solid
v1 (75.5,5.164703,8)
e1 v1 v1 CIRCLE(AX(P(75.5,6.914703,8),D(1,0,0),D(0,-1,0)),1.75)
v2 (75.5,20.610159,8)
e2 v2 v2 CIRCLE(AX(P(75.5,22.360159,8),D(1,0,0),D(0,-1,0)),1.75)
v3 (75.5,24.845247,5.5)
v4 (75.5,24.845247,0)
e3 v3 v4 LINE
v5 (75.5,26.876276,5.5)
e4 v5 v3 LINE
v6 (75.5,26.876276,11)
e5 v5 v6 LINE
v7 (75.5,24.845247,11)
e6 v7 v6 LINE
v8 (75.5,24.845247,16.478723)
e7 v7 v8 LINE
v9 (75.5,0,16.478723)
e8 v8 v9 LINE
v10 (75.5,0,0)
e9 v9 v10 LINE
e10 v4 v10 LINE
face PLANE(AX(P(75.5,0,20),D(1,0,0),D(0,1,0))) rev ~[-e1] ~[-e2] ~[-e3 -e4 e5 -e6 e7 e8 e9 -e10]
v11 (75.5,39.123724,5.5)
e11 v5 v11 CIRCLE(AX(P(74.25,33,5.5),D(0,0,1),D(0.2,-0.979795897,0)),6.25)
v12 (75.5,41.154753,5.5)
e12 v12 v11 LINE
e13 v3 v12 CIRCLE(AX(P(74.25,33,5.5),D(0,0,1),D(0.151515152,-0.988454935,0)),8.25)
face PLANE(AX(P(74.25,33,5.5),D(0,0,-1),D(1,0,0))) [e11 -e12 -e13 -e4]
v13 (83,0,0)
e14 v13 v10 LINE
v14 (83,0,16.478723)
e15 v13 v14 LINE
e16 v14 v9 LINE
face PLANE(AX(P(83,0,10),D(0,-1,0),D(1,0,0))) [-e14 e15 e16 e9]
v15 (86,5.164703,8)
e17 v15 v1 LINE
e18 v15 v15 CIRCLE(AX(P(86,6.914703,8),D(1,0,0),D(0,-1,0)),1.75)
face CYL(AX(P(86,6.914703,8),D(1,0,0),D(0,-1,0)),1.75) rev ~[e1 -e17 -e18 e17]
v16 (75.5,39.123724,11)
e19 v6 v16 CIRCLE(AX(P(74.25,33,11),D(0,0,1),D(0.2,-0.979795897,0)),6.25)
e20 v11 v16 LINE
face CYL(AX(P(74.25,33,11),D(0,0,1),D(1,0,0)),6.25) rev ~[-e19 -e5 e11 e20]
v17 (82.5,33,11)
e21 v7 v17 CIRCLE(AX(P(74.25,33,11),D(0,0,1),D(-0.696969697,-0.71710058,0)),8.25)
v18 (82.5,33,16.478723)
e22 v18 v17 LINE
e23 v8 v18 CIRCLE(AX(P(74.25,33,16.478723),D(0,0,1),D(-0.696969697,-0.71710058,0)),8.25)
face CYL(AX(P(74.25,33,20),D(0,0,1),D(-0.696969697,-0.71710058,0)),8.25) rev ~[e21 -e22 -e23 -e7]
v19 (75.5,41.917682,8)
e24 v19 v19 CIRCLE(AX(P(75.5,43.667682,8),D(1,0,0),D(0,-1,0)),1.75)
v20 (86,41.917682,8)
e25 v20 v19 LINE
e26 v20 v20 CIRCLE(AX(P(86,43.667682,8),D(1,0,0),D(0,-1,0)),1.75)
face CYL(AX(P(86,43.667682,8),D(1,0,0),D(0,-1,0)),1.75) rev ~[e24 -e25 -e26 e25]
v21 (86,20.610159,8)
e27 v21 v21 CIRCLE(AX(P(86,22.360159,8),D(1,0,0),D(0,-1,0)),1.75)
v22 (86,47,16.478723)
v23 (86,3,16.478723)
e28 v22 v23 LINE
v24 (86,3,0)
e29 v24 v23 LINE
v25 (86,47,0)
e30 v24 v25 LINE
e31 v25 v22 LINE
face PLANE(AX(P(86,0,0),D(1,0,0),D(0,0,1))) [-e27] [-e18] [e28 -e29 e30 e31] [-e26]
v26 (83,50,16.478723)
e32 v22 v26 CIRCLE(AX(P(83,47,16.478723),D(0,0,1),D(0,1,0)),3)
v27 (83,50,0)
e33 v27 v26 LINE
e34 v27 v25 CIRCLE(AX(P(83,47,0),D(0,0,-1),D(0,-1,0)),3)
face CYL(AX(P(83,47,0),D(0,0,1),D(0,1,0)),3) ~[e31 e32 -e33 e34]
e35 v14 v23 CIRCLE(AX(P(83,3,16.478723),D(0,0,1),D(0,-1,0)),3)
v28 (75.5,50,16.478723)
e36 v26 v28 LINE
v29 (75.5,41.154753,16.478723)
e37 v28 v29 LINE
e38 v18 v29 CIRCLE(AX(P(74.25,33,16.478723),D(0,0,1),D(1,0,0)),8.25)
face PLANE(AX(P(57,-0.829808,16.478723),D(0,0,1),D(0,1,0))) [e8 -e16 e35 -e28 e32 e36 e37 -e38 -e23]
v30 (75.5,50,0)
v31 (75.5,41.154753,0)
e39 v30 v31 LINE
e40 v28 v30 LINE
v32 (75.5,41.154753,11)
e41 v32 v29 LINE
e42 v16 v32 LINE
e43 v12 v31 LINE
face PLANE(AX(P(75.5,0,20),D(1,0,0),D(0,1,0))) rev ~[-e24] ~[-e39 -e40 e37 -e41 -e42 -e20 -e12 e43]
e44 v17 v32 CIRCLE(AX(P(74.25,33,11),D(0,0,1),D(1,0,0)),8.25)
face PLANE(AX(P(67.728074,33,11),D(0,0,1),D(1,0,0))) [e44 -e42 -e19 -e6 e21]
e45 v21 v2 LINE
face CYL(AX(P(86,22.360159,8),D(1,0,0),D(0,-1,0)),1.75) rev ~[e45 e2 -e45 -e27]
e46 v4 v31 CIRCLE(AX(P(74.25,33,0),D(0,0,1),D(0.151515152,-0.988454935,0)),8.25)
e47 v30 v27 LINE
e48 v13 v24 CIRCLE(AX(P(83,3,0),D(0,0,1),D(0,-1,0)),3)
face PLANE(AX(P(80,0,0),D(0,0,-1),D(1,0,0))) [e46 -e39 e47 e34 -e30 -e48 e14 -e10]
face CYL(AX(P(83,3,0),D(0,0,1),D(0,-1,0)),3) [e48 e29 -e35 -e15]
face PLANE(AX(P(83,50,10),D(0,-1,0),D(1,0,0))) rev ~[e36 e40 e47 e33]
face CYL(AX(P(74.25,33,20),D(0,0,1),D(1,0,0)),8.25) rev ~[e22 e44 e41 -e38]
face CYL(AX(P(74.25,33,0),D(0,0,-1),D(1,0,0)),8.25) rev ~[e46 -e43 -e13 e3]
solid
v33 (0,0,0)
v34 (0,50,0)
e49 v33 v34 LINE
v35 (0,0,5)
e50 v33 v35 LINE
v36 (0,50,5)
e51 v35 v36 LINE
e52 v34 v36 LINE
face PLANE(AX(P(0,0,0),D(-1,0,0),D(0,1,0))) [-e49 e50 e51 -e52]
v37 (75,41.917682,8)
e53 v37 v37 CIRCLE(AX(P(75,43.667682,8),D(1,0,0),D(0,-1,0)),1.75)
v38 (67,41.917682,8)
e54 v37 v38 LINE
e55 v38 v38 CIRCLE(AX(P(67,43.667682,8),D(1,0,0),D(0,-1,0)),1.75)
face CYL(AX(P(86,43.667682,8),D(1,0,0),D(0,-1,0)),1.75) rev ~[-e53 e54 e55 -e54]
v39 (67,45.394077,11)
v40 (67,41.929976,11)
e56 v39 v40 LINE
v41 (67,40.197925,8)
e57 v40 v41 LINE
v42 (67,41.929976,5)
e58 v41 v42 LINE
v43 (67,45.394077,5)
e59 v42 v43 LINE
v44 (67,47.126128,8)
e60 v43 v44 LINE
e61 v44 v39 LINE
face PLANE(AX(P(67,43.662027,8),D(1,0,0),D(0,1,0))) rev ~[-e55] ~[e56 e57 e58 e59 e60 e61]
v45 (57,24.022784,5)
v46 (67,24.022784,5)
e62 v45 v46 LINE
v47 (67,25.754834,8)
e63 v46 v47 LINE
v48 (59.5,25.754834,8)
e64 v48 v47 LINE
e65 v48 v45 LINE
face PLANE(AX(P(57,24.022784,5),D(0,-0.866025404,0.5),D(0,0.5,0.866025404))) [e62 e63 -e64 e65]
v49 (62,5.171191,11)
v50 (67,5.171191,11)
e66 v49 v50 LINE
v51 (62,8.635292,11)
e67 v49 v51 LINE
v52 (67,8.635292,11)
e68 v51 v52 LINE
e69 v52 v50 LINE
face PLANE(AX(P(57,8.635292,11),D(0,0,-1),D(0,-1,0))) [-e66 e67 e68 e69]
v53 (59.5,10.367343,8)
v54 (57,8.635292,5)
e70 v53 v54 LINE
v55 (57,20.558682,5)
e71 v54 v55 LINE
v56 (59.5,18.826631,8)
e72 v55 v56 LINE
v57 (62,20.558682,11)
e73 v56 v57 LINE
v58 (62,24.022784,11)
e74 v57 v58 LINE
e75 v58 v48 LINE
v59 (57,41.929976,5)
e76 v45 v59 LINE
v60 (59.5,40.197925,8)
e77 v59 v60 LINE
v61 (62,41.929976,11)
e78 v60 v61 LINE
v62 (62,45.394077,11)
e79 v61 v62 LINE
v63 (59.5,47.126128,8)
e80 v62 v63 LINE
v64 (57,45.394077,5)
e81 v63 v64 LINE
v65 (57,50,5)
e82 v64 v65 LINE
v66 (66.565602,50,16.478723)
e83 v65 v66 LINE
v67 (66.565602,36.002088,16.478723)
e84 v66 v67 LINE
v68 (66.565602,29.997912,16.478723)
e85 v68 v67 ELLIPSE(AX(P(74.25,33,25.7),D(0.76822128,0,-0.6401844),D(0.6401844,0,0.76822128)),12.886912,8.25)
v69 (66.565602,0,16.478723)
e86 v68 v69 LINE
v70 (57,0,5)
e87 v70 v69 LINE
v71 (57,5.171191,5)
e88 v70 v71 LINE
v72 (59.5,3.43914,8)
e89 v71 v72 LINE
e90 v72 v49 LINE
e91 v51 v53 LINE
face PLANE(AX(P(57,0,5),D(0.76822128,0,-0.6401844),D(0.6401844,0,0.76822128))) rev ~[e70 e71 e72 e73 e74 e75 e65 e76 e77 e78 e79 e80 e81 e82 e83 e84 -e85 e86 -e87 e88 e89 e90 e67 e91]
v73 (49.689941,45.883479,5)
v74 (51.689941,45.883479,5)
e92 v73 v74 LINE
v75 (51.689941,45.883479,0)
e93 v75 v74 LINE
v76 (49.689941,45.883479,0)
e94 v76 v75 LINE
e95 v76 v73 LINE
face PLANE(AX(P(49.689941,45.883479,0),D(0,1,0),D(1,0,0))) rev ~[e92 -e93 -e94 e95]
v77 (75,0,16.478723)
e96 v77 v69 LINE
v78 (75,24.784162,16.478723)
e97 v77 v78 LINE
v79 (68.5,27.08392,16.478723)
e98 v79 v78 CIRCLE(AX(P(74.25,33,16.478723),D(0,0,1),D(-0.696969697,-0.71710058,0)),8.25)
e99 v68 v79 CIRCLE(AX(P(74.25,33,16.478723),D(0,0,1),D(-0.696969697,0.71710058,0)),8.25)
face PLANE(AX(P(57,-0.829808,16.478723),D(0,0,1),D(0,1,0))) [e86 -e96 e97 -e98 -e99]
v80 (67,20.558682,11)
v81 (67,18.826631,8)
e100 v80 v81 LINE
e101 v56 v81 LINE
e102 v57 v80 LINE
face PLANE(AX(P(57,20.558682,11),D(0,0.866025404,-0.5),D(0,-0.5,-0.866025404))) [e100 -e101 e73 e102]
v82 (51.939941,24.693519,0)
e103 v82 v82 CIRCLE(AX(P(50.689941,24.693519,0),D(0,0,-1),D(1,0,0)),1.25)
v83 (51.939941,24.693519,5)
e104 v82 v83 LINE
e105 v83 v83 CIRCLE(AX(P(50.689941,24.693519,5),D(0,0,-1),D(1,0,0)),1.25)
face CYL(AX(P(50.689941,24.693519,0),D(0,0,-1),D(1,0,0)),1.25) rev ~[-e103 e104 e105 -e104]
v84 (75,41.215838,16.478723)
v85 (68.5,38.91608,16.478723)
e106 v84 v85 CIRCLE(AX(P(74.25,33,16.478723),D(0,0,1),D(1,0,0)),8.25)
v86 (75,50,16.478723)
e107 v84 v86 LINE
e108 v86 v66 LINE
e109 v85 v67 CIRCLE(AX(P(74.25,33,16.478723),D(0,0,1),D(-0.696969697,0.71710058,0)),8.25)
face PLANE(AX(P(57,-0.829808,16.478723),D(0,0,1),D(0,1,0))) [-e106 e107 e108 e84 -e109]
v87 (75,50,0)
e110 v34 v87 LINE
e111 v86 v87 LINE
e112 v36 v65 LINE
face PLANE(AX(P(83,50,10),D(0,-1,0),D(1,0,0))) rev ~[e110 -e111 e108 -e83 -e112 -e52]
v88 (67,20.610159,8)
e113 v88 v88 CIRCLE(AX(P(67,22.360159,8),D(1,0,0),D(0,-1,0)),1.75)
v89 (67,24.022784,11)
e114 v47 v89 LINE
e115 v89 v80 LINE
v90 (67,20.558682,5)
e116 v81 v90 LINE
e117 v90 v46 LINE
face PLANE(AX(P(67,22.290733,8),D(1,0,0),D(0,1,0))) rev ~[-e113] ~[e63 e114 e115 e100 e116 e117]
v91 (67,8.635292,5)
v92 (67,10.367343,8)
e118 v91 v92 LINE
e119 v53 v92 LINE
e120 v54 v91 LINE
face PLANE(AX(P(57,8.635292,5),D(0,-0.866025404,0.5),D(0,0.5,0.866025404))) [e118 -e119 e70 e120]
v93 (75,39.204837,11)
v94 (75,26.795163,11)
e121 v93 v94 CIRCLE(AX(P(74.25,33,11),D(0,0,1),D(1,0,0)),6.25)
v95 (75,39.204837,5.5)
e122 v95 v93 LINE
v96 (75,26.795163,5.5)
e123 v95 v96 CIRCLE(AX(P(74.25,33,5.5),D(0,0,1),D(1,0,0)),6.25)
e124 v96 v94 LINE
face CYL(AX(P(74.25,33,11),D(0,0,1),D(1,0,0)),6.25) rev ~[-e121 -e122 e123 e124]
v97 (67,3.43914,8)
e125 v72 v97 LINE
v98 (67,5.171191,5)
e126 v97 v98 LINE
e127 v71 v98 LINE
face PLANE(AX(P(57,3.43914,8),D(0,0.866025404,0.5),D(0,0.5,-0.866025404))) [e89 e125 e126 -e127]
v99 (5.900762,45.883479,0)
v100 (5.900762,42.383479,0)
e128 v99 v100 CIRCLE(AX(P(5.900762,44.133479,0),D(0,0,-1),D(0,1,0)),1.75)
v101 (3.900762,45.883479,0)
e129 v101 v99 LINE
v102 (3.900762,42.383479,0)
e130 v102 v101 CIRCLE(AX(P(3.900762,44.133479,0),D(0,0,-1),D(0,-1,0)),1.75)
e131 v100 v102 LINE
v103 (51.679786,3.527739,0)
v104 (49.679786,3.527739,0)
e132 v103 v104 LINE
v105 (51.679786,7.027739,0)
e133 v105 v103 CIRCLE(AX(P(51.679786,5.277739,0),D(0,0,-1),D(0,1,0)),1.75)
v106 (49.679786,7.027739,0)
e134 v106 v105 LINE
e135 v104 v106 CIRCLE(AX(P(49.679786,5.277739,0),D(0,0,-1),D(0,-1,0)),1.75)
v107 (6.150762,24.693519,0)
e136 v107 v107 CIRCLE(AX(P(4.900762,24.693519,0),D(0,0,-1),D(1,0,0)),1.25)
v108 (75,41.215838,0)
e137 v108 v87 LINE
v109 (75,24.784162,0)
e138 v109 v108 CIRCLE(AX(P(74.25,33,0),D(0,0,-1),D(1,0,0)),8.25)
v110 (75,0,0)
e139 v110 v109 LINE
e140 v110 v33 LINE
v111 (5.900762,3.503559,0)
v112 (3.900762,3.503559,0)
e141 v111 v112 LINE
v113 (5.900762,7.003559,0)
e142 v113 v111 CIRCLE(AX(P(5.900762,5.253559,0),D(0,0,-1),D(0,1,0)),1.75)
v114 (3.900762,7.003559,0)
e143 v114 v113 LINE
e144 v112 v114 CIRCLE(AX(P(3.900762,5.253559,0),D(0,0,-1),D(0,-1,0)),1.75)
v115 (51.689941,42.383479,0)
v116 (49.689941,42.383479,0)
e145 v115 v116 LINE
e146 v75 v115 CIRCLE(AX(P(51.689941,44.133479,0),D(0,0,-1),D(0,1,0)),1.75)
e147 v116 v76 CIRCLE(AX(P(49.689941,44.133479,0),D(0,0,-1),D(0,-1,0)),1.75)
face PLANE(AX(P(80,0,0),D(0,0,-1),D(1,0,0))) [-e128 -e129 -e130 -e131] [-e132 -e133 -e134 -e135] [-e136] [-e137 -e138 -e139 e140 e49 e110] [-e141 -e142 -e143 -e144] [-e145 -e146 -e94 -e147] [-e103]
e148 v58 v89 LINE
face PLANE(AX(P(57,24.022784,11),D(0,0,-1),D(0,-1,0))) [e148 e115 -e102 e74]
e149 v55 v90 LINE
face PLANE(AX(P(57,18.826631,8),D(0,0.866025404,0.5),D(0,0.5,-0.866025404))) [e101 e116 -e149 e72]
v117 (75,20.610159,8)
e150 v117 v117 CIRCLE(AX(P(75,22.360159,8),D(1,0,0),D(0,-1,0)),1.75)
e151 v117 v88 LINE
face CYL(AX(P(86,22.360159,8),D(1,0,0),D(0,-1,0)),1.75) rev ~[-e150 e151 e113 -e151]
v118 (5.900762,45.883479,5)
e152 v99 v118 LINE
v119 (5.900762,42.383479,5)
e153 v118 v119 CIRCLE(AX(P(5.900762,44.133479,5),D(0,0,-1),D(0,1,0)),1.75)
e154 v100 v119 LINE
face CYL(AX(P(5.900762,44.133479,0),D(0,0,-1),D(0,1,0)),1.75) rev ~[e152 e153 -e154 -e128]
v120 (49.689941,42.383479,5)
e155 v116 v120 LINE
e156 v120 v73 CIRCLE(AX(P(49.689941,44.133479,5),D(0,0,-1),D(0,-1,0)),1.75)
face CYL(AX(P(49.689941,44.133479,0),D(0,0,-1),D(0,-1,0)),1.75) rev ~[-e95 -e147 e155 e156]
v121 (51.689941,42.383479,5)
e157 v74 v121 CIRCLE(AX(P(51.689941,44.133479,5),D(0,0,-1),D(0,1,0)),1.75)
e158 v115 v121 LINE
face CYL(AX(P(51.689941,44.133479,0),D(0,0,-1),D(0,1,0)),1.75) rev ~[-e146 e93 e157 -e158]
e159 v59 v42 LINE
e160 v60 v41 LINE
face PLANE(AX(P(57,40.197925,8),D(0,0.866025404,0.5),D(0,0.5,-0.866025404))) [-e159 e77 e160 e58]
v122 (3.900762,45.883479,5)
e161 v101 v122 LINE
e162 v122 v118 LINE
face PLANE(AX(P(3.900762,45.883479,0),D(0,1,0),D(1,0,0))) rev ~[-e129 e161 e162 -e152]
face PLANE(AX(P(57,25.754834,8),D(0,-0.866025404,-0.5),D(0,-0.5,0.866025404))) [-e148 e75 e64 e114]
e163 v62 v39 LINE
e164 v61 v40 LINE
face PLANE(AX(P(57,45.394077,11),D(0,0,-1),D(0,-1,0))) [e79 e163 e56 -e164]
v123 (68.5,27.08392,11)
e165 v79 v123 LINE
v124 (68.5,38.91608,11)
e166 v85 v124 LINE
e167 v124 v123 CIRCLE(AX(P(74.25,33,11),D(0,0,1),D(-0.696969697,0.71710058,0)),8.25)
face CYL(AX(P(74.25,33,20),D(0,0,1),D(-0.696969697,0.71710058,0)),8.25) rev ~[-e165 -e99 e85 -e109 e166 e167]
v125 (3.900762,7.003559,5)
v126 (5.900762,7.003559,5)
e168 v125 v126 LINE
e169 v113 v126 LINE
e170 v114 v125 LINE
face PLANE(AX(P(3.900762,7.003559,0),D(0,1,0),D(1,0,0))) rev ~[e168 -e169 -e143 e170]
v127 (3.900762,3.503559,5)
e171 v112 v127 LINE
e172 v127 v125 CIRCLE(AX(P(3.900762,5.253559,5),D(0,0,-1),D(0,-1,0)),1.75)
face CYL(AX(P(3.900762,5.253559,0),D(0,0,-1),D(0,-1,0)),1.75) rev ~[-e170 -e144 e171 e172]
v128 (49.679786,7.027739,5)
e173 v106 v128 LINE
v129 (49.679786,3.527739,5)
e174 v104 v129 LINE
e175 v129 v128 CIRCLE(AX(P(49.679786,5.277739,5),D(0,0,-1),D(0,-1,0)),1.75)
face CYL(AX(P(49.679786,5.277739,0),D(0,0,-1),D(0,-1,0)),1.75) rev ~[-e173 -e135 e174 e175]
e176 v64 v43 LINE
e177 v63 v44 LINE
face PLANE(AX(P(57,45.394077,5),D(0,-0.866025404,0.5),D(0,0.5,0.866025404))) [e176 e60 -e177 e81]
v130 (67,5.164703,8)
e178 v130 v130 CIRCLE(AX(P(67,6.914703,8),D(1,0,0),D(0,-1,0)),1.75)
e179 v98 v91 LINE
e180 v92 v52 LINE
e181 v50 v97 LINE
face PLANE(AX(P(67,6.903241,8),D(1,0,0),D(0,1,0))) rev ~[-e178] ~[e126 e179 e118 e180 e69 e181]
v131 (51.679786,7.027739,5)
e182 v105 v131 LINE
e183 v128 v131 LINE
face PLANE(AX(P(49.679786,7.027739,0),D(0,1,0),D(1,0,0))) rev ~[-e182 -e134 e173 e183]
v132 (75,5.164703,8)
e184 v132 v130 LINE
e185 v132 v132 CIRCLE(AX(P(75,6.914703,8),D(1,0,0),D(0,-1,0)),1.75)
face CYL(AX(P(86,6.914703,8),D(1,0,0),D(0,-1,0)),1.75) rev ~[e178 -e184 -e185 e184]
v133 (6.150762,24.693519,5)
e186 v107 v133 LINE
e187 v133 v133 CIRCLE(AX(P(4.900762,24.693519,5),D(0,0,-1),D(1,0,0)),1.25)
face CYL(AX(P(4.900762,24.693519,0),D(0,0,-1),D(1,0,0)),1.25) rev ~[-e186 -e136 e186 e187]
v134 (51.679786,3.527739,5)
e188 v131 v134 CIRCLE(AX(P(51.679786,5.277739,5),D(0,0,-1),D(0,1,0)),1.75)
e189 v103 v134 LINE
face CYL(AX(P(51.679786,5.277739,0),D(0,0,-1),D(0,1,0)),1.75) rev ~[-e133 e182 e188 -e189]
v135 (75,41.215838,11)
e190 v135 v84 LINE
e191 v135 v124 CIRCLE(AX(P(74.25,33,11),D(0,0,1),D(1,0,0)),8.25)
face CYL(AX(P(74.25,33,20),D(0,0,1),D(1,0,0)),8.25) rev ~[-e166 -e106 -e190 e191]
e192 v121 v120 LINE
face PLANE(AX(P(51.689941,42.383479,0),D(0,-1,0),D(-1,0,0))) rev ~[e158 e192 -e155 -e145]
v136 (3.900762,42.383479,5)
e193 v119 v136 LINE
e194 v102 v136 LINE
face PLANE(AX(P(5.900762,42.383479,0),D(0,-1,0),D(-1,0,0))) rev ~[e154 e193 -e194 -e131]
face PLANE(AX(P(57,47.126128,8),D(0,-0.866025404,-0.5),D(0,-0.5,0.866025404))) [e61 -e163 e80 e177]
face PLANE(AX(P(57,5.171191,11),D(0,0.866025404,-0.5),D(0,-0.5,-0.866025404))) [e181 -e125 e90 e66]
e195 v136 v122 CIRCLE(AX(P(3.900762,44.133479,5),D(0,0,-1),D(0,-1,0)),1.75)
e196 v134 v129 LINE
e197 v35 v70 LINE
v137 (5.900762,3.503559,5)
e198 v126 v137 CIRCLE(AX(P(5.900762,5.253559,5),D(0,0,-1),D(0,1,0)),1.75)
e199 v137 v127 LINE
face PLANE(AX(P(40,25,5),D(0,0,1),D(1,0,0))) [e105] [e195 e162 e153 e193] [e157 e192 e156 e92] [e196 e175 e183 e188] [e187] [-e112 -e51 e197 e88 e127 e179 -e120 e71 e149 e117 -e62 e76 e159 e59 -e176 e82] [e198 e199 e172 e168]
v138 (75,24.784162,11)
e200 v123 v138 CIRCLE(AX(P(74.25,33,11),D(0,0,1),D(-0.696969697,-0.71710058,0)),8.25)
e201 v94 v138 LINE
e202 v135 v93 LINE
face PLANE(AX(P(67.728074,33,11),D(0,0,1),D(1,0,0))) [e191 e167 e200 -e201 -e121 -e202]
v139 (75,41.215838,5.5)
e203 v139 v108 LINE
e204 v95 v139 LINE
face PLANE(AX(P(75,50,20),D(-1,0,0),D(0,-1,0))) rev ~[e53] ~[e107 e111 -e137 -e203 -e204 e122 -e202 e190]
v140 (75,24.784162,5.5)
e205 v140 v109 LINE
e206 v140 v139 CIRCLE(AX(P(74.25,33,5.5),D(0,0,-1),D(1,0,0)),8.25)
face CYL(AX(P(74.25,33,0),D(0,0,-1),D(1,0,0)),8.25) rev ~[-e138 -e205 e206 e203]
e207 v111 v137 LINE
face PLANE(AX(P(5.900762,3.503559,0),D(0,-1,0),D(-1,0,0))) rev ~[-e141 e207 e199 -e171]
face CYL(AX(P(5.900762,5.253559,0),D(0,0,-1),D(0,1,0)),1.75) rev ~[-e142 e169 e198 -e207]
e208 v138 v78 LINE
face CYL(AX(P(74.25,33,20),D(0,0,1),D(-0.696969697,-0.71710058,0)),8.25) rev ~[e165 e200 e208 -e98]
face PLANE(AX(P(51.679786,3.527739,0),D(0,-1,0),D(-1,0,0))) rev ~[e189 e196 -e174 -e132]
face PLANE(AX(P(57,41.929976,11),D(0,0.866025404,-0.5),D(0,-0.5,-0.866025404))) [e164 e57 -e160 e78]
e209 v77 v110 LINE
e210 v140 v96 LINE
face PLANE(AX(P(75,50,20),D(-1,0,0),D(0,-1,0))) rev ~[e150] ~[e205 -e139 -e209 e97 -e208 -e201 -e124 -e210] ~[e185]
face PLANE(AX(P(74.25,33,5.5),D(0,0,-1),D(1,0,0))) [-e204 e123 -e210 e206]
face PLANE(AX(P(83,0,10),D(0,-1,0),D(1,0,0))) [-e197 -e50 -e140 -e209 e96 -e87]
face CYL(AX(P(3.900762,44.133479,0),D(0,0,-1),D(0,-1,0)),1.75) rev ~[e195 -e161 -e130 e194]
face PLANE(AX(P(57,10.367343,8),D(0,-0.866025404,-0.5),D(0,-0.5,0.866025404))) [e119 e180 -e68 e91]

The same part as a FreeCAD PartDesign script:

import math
import FreeCAD as App
import Part
import Sketcher
Q = App.Units.Quantity


def edges_at(feature, points):
    """Names of the edges that pass closest to the given points."""
    edges = feature.Shape.Edges
    near = lambda p: min(range(len(edges)), key=lambda i: edges[i].distToShape(Part.Vertex(*p))[0])
    return sorted({f"Edge{near(p) + 1}" for p in points})

doc = App.newDocument("Part")
params = doc.addObject("Spreadsheet::Sheet", "Params")
for row, (alias, value) in enumerate([
    ("sketch1_width", "80 mm"),
    ("sketch1_width2", "2 mm"),
    ("sketch1_height", "50 mm"),
    ("sketch1_radius", "1.75 mm"),
    ("pad1_length", "5 mm"),
    ("sketch2_width", "23 mm"),
    ("sketch2_height", "50 mm"),
    ("pad2_length", "15 mm"),
    ("sketch3_height", "15 mm"),
    ("sketch3_width", "11.5 mm"),
    ("pocket1_length", "50 mm"),
    ("sketch4_radius", "1.25 mm"),
    ("pocket2_length", "25 mm"),
    ("sketch5_width", "6 mm"),
    ("sketch5_height", "20 mm"),
    ("pad3_length", "50 mm"),
    ("sketch6_diameter", "2.5 mm"),
    ("sketch6_radius", "8.25 mm"),
    ("pocket3_length", "9 mm"),
    ("sketch7_diameter", "12.5 mm"),
    ("sketch7_diameter2", "2.5 mm"),
    ("pocket4_length", "6 mm"),
    ("sketch8_diameter", "16.5 mm"),
    ("sketch8_diameter2", "2.5 mm"),
    ("pocket5_length", "5.5 mm"),
    ("sketch9_height", "50 mm"),
    ("sketch9_width", "0.5 mm"),
    ("pocket6_length", "25 mm"),
    ("fillet_radius", "3 mm"),
    ("sketch10_width", "1 mm"),
    ("pocket7_length", "55 mm"),
    ("sketch11_diameter", "3.5 mm"),
    ("pocket8_length", "30 mm"),
    ("sketch12_diameter", "2.5 mm"),
    ("pocket9_length", "10 mm"),
    ("pocket10_length", "10 mm"),
    ("sketch14_height", "4 mm"),
    ("pocket11_length", "30 mm"),
], start=1):
    params.set(f"A{row}", alias)
    params.set(f"B{row}", "=" + value)
    params.setAlias(f"B{row}", alias)

body = doc.addObject("PartDesign::Body", "Body")
body.AllowCompound = True

sketch1 = body.newObject("Sketcher::SketchObject", "Sketch")
sketch1.AttachmentSupport = (doc.getObject("XY_Plane"), [""])
sketch1.MapMode = "FlatFace"
sketch1.addGeometry([
    Part.LineSegment(App.Vector(0, 50, 0), App.Vector(0, 0, 0)),
    Part.LineSegment(App.Vector(0, 0, 0), App.Vector(80, 0, 0)),
    Part.LineSegment(App.Vector(80, 0, 0), App.Vector(80, 50, 0)),
    Part.LineSegment(App.Vector(80, 50, 0), App.Vector(0, 50, 0)),
    Part.LineSegment(App.Vector(3.9, 7, 0), App.Vector(5.9, 7, 0)),
    Part.ArcOfCircle(Part.Circle(App.Vector(5.9, 5.3, 0), App.Vector(0, 0, 1), 1.8), math.radians(-90), math.radians(90)),
    Part.LineSegment(App.Vector(5.9, 3.5, 0), App.Vector(3.9, 3.5, 0)),
    Part.ArcOfCircle(Part.Circle(App.Vector(3.9, 5.3, 0), App.Vector(0, 0, 1), 1.8), math.radians(90), math.radians(270)),
    Part.LineSegment(App.Vector(49.7, 7, 0), App.Vector(51.7, 7, 0)),
    Part.ArcOfCircle(Part.Circle(App.Vector(51.7, 5.3, 0), App.Vector(0, 0, 1), 1.8), math.radians(-90), math.radians(90)),
    Part.LineSegment(App.Vector(51.7, 3.5, 0), App.Vector(49.7, 3.5, 0)),
    Part.ArcOfCircle(Part.Circle(App.Vector(49.7, 5.3, 0), App.Vector(0, 0, 1), 1.8), math.radians(90), math.radians(270)),
    Part.LineSegment(App.Vector(3.9, 45.9, 0), App.Vector(5.9, 45.9, 0)),
    Part.ArcOfCircle(Part.Circle(App.Vector(5.9, 44.1, 0), App.Vector(0, 0, 1), 1.8), math.radians(-90), math.radians(90)),
    Part.LineSegment(App.Vector(5.9, 42.4, 0), App.Vector(3.9, 42.4, 0)),
    Part.ArcOfCircle(Part.Circle(App.Vector(3.9, 44.1, 0), App.Vector(0, 0, 1), 1.8), math.radians(90), math.radians(270)),
    Part.LineSegment(App.Vector(49.7, 45.9, 0), App.Vector(51.7, 45.9, 0)),
    Part.ArcOfCircle(Part.Circle(App.Vector(51.7, 44.1, 0), App.Vector(0, 0, 1), 1.8), math.radians(-90), math.radians(90)),
    Part.LineSegment(App.Vector(51.7, 42.4, 0), App.Vector(49.7, 42.4, 0)),
    Part.ArcOfCircle(Part.Circle(App.Vector(49.7, 44.1, 0), App.Vector(0, 0, 1), 1.8), math.radians(90), math.radians(270)),
], False)
sketch1.addConstraint([
    Sketcher.Constraint("Coincident", 0, 2, 1, 1),
    Sketcher.Constraint("Coincident", 1, 2, 2, 1),
    Sketcher.Constraint("Coincident", 2, 2, 3, 1),
    Sketcher.Constraint("Coincident", 3, 2, 0, 1),
    Sketcher.Constraint("Tangent", 4, 2, 5, 2),
    Sketcher.Constraint("Tangent", 5, 1, 6, 1),
    Sketcher.Constraint("Tangent", 6, 2, 7, 2),
    Sketcher.Constraint("Tangent", 7, 1, 4, 1),
    Sketcher.Constraint("Tangent", 8, 2, 9, 2),
    Sketcher.Constraint("Tangent", 9, 1, 10, 1),
    Sketcher.Constraint("Tangent", 10, 2, 11, 2),
    Sketcher.Constraint("Tangent", 11, 1, 8, 1),
    Sketcher.Constraint("Tangent", 12, 2, 13, 2),
    Sketcher.Constraint("Tangent", 13, 1, 14, 1),
    Sketcher.Constraint("Tangent", 14, 2, 15, 2),
    Sketcher.Constraint("Tangent", 15, 1, 12, 1),
    Sketcher.Constraint("Tangent", 16, 2, 17, 2),
    Sketcher.Constraint("Tangent", 17, 1, 18, 1),
    Sketcher.Constraint("Tangent", 18, 2, 19, 2),
    Sketcher.Constraint("Tangent", 19, 1, 16, 1),
    Sketcher.Constraint("Vertical", 0),
    Sketcher.Constraint("Horizontal", 1),
    Sketcher.Constraint("Vertical", 2),
    Sketcher.Constraint("Horizontal", 3),
    Sketcher.Constraint("Horizontal", 4),
    Sketcher.Constraint("Horizontal", 6),
    Sketcher.Constraint("Horizontal", 8),
    Sketcher.Constraint("Horizontal", 10),
    Sketcher.Constraint("Horizontal", 12),
    Sketcher.Constraint("Horizontal", 14),
    Sketcher.Constraint("Horizontal", 16),
    Sketcher.Constraint("Horizontal", 18),
    Sketcher.Constraint("Coincident", 0, 2, -1, 1),
    Sketcher.Constraint("Equal", 7, 9),
    Sketcher.Constraint("Equal", 11, 13),
    Sketcher.Constraint("Equal", 15, 17),
    Sketcher.Constraint("Horizontal", 15, 3, 17, 3),
    Sketcher.Constraint("Vertical", 5, 3, 13, 3),
    Sketcher.Constraint("Vertical", 7, 3, 15, 3),
    Sketcher.Constraint("Equal", 6, 8),
    Sketcher.Constraint("Equal", 14, 16),
    Sketcher.Constraint("DistanceX", 1, 1, 1, 2, Q("80 mm")),
    Sketcher.Constraint("DistanceX", 4, 1, 4, 2, Q("2 mm")),
    Sketcher.Constraint("DistanceY", 0, 2, 0, 1, Q("50 mm")),
    Sketcher.Constraint("Radius", 5, Q("1.75 mm")),
    Sketcher.Constraint("DistanceX", -1, 1, 5, 3, Q("5.900762 mm")),
    Sketcher.Constraint("DistanceY", -1, 1, 5, 3, Q("5.253559 mm")),
    Sketcher.Constraint("DistanceY", -1, 1, 9, 3, Q("5.277739 mm")),
    Sketcher.Constraint("DistanceY", -1, 1, 13, 3, Q("44.133479 mm")),
    Sketcher.Constraint("DistanceX", -1, 1, 17, 3, Q("51.689941 mm")),
    Sketcher.Constraint("DistanceX", -1, 1, 9, 3, Q("51.679786 mm")),
])
sketch1.setExpression("Constraints[41]", "Params.sketch1_width")
sketch1.setExpression("Constraints[42]", "Params.sketch1_width2")
sketch1.setExpression("Constraints[43]", "Params.sketch1_height")
sketch1.setExpression("Constraints[44]", "Params.sketch1_radius")
pad1 = body.newObject("PartDesign::Pad", "Pad")
pad1.Profile = sketch1
pad1.setExpression("Length", "Params.pad1_length")

sketch2 = body.newObject("Sketcher::SketchObject", "Sketch001")
sketch2.AttachmentSupport = (doc.getObject("XY_Plane"), [""])
sketch2.MapMode = "FlatFace"
sketch2.AttachmentOffset = App.Placement(App.Vector(0, 0, 5), App.Rotation())
sketch2.addGeometry([
    Part.LineSegment(App.Vector(57, 50, 0), App.Vector(57, 0, 0)),
    Part.LineSegment(App.Vector(57, 0, 0), App.Vector(80, 0, 0)),
    Part.LineSegment(App.Vector(80, 0, 0), App.Vector(80, 50, 0)),
    Part.LineSegment(App.Vector(80, 50, 0), App.Vector(57, 50, 0)),
], False)
sketch2.addConstraint([
    Sketcher.Constraint("Coincident", 0, 2, 1, 1),
    Sketcher.Constraint("Coincident", 1, 2, 2, 1),
    Sketcher.Constraint("Coincident", 2, 2, 3, 1),
    Sketcher.Constraint("Coincident", 3, 2, 0, 1),
    Sketcher.Constraint("Vertical", 0),
    Sketcher.Constraint("Horizontal", 1),
    Sketcher.Constraint("Vertical", 2),
    Sketcher.Constraint("Horizontal", 3),
    Sketcher.Constraint("PointOnObject", 0, 2, -1),
    Sketcher.Constraint("DistanceX", 1, 1, 1, 2, Q("23 mm")),
    Sketcher.Constraint("DistanceY", 0, 2, 0, 1, Q("50 mm")),
    Sketcher.Constraint("DistanceX", -1, 1, 0, 2, Q("57 mm")),
])
sketch2.setExpression("Constraints[9]", "Params.sketch2_width")
sketch2.setExpression("Constraints[10]", "Params.sketch2_height")
pad2 = body.newObject("PartDesign::Pad", "Pad001")
pad2.Profile = sketch2
pad2.setExpression("Length", "Params.pad2_length")

sketch3 = body.newObject("Sketcher::SketchObject", "Sketch002")
sketch3.AttachmentSupport = (doc.getObject("XZ_Plane"), [""])
sketch3.MapMode = "FlatFace"
sketch3.addGeometry([
    Part.LineSegment(App.Vector(57, 5, 0), App.Vector(68, 20, 0)),
    Part.LineSegment(App.Vector(68, 20, 0), App.Vector(57, 20, 0)),
    Part.LineSegment(App.Vector(57, 20, 0), App.Vector(57, 5, 0)),
], False)
sketch3.addConstraint([
    Sketcher.Constraint("Coincident", 0, 2, 1, 1),
    Sketcher.Constraint("Coincident", 1, 2, 2, 1),
    Sketcher.Constraint("Coincident", 2, 2, 0, 1),
    Sketcher.Constraint("Horizontal", 1),
    Sketcher.Constraint("Vertical", 2),
    Sketcher.Constraint("DistanceY", 2, 2, 2, 1, Q("15 mm")),
    Sketcher.Constraint("DistanceX", 1, 2, 1, 1, Q("11.5 mm")),
    Sketcher.Constraint("DistanceY", -1, 1, 0, 2, Q("20 mm")),
    Sketcher.Constraint("DistanceX", -1, 1, 1, 2, Q("57 mm")),
])
sketch3.setExpression("Constraints[5]", "Params.sketch3_height")
sketch3.setExpression("Constraints[6]", "Params.sketch3_width")
pocket1 = body.newObject("PartDesign::Pocket", "Pocket")
pocket1.Profile = sketch3
pocket1.setExpression("Length", "Params.pocket1_length")

sketch4 = body.newObject("Sketcher::SketchObject", "Sketch003")
sketch4.AttachmentSupport = (doc.getObject("XY_Plane"), [""])
sketch4.MapMode = "FlatFace"
sketch4.AttachmentOffset = App.Placement(App.Vector(0, 0, 20), App.Rotation())
sketch4.addGeometry([
    Part.ArcOfCircle(Part.Circle(App.Vector(74.2, 33, 0), App.Vector(0, 0, 1), 1.2), math.radians(90), math.radians(270)),
    Part.ArcOfCircle(Part.Circle(App.Vector(74.2, 33, 0), App.Vector(0, 0, 1), 1.2), math.radians(-90), math.radians(0)),
    Part.ArcOfCircle(Part.Circle(App.Vector(74.2, 33, 0), App.Vector(0, 0, 1), 1.2), math.radians(0), math.radians(90)),
], False)
sketch4.addConstraint([
    Sketcher.Constraint("Tangent", 0, 2, 1, 1),
    Sketcher.Constraint("Tangent", 1, 2, 2, 1),
    Sketcher.Constraint("Tangent", 2, 2, 0, 1),
    Sketcher.Constraint("Horizontal", 2, 3, 1, 2),
    Sketcher.Constraint("Vertical", 2, 3, 0, 2),
    Sketcher.Constraint("Vertical", 0, 2, 2, 2),
    Sketcher.Constraint("Radius", 0, Q("1.25 mm")),
    Sketcher.Constraint("DistanceY", -1, 1, 0, 3, Q("33 mm")),
    Sketcher.Constraint("DistanceX", -1, 1, 1, 2, Q("75.5 mm")),
])
sketch4.setExpression("Constraints[6]", "Params.sketch4_radius")
pocket2 = body.newObject("PartDesign::Pocket", "Pocket001")
pocket2.Profile = sketch4
pocket2.setExpression("Length", "Params.pocket2_length")

sketch5 = body.newObject("Sketcher::SketchObject", "Sketch004")
sketch5.AttachmentSupport = (doc.getObject("XZ_Plane"), [""])
sketch5.MapMode = "FlatFace"
sketch5.addGeometry([
    Part.LineSegment(App.Vector(80, 20, 0), App.Vector(80, 0, 0)),
    Part.LineSegment(App.Vector(80, 0, 0), App.Vector(86, 0, 0)),
    Part.LineSegment(App.Vector(86, 0, 0), App.Vector(86, 20, 0)),
    Part.LineSegment(App.Vector(86, 20, 0), App.Vector(80, 20, 0)),
], False)
sketch5.addConstraint([
    Sketcher.Constraint("Coincident", 0, 2, 1, 1),
    Sketcher.Constraint("Coincident", 1, 2, 2, 1),
    Sketcher.Constraint("Coincident", 2, 2, 3, 1),
    Sketcher.Constraint("Coincident", 3, 2, 0, 1),
    Sketcher.Constraint("Vertical", 0),
    Sketcher.Constraint("Horizontal", 1),
    Sketcher.Constraint("Vertical", 2),
    Sketcher.Constraint("Horizontal", 3),
    Sketcher.Constraint("PointOnObject", 0, 2, -1),
    Sketcher.Constraint("DistanceX", 1, 1, 1, 2, Q("6 mm")),
    Sketcher.Constraint("DistanceY", 0, 2, 0, 1, Q("20 mm")),
    Sketcher.Constraint("DistanceX", -1, 1, 0, 2, Q("80 mm")),
])
sketch5.setExpression("Constraints[9]", "Params.sketch5_width")
sketch5.setExpression("Constraints[10]", "Params.sketch5_height")
pad3 = body.newObject("PartDesign::Pad", "Pad002")
pad3.Profile = sketch5
pad3.setExpression("Length", "Params.pad3_length")
pad3.Reversed = True

sketch6 = body.newObject("Sketcher::SketchObject", "Sketch005")
sketch6.AttachmentSupport = (doc.getObject("XY_Plane"), [""])
sketch6.MapMode = "FlatFace"
sketch6.AttachmentOffset = App.Placement(App.Vector(0, 0, 20), App.Rotation())
sketch6.addGeometry([
    Part.ArcOfCircle(Part.Circle(App.Vector(74.2, 33, 0), App.Vector(0, 0, 1), 8.2), math.radians(134), math.radians(226)),
    Part.ArcOfCircle(Part.Circle(App.Vector(74.2, 33, 0), App.Vector(0, 0, 1), 8.2), math.radians(-134), math.radians(0)),
    Part.ArcOfCircle(Part.Circle(App.Vector(74.2, 33, 0), App.Vector(0, 0, 1), 8.2), math.radians(0), math.radians(134)),
    Part.Circle(App.Vector(74.2, 33, 0), App.Vector(0, 0, 1), 1.2),
], False)
sketch6.addConstraint([
    Sketcher.Constraint("Tangent", 0, 2, 1, 1),
    Sketcher.Constraint("Tangent", 1, 2, 2, 1),
    Sketcher.Constraint("Tangent", 2, 2, 0, 1),
    Sketcher.Constraint("Coincident", 3, 3, 0, 3),
    Sketcher.Constraint("Horizontal", 3, 3, 1, 2),
    Sketcher.Constraint("Vertical", 0, 2, 2, 2),
    Sketcher.Constraint("Diameter", 3, Q("2.5 mm")),
    Sketcher.Constraint("Radius", 0, Q("8.25 mm")),
    Sketcher.Constraint("DistanceY", -1, 1, 0, 3, Q("33 mm")),
    Sketcher.Constraint("DistanceX", 0, 2, 1, 2, Q("14 mm")),
    Sketcher.Constraint("DistanceX", -1, 1, 0, 2, Q("68.5 mm")),
])
sketch6.setExpression("Constraints[6]", "Params.sketch6_diameter")
sketch6.setExpression("Constraints[7]", "Params.sketch6_radius")
pocket3 = body.newObject("PartDesign::Pocket", "Pocket002")
pocket3.Profile = sketch6
pocket3.setExpression("Length", "Params.pocket3_length")

sketch7 = body.newObject("Sketcher::SketchObject", "Sketch006")
sketch7.AttachmentSupport = (doc.getObject("XY_Plane"), [""])
sketch7.MapMode = "FlatFace"
sketch7.AttachmentOffset = App.Placement(App.Vector(0, 0, 11), App.Rotation())
sketch7.addGeometry([
    Part.Circle(App.Vector(74.2, 33, 0), App.Vector(0, 0, 1), 6.2),
    Part.Circle(App.Vector(74.2, 33, 0), App.Vector(0, 0, 1), 1.2),
], False)
sketch7.addConstraint([
    Sketcher.Constraint("Coincident", 1, 3, 0, 3),
    Sketcher.Constraint("Diameter", 0, Q("12.5 mm")),
    Sketcher.Constraint("Diameter", 1, Q("2.5 mm")),
    Sketcher.Constraint("DistanceY", -1, 1, 0, 3, Q("33 mm")),
    Sketcher.Constraint("DistanceX", -1, 1, 0, 3, Q("74.25 mm")),
])
sketch7.setExpression("Constraints[1]", "Params.sketch7_diameter")
sketch7.setExpression("Constraints[2]", "Params.sketch7_diameter2")
pocket4 = body.newObject("PartDesign::Pocket", "Pocket003")
pocket4.Profile = sketch7
pocket4.setExpression("Length", "Params.pocket4_length")

sketch8 = body.newObject("Sketcher::SketchObject", "Sketch007")
sketch8.AttachmentSupport = (doc.getObject("XY_Plane"), [""])
sketch8.MapMode = "FlatFace"
sketch8.addGeometry([
    Part.Circle(App.Vector(74.2, 33, 0), App.Vector(0, 0, 1), 8.2),
    Part.Circle(App.Vector(74.2, 33, 0), App.Vector(0, 0, 1), 1.2),
], False)
sketch8.addConstraint([
    Sketcher.Constraint("Coincident", 1, 3, 0, 3),
    Sketcher.Constraint("Diameter", 0, Q("16.5 mm")),
    Sketcher.Constraint("Diameter", 1, Q("2.5 mm")),
    Sketcher.Constraint("DistanceY", -1, 1, 0, 3, Q("33 mm")),
    Sketcher.Constraint("DistanceX", -1, 1, 0, 3, Q("74.25 mm")),
])
sketch8.setExpression("Constraints[1]", "Params.sketch8_diameter")
sketch8.setExpression("Constraints[2]", "Params.sketch8_diameter2")
pocket5 = body.newObject("PartDesign::Pocket", "Pocket004")
pocket5.Profile = sketch8
pocket5.setExpression("Length", "Params.pocket5_length")
pocket5.Reversed = True

sketch9 = body.newObject("Sketcher::SketchObject", "Sketch008")
sketch9.AttachmentSupport = (doc.getObject("XY_Plane"), [""])
sketch9.MapMode = "FlatFace"
sketch9.AttachmentOffset = App.Placement(App.Vector(0, 0, 20), App.Rotation())
sketch9.addGeometry([
    Part.LineSegment(App.Vector(75.5, 50, 0), App.Vector(75, 50, 0)),
    Part.LineSegment(App.Vector(75, 50, 0), App.Vector(75, 0, 0)),
    Part.LineSegment(App.Vector(75, 0, 0), App.Vector(75.5, 0, 0)),
    Part.LineSegment(App.Vector(75.5, 0, 0), App.Vector(75.5, 50, 0)),
], False)
sketch9.addConstraint([
    Sketcher.Constraint("Coincident", 0, 2, 1, 1),
    Sketcher.Constraint("Coincident", 1, 2, 2, 1),
    Sketcher.Constraint("Coincident", 2, 2, 3, 1),
    Sketcher.Constraint("Coincident", 3, 2, 0, 1),
    Sketcher.Constraint("Horizontal", 0),
    Sketcher.Constraint("Vertical", 1),
    Sketcher.Constraint("Horizontal", 2),
    Sketcher.Constraint("Vertical", 3),
    Sketcher.Constraint("PointOnObject", 1, 2, -1),
    Sketcher.Constraint("DistanceY", 1, 2, 1, 1, Q("50 mm")),
    Sketcher.Constraint("DistanceX", 0, 2, 0, 1, Q("0.5 mm")),
    Sketcher.Constraint("DistanceX", -1, 1, 0, 2, Q("75 mm")),
])
sketch9.setExpression("Constraints[9]", "Params.sketch9_height")
sketch9.setExpression("Constraints[10]", "Params.sketch9_width")
pocket6 = body.newObject("PartDesign::Pocket", "Pocket005")
pocket6.Profile = sketch9
pocket6.setExpression("Length", "Params.pocket6_length")
doc.recompute()

fillet = body.newObject("PartDesign::Fillet", "Fillet")
fillet.Base = (pocket6, edges_at(pocket6, [(86, 0, 10), (86, 50, 10)]))
fillet.setExpression("Radius", "Params.fillet_radius")

sketch10 = body.newObject("Sketcher::SketchObject", "Sketch009")
sketch10.AttachmentSupport = (doc.getObject("XZ_Plane"), [""])
sketch10.MapMode = "FlatFace"
sketch10.addGeometry([
    Part.LineSegment(App.Vector(57, 5, 0), App.Vector(69.5, 20, 0)),
    Part.LineSegment(App.Vector(69.5, 20, 0), App.Vector(68.5, 20, 0)),
    Part.LineSegment(App.Vector(68.5, 20, 0), App.Vector(57, 5, 0)),
], False)
sketch10.addConstraint([
    Sketcher.Constraint("Coincident", 0, 2, 1, 1),
    Sketcher.Constraint("Coincident", 1, 2, 2, 1),
    Sketcher.Constraint("Coincident", 2, 2, 0, 1),
    Sketcher.Constraint("Horizontal", 1),
    Sketcher.Constraint("DistanceX", 1, 2, 1, 1, Q("1 mm")),
    Sketcher.Constraint("DistanceY", -1, 1, 0, 2, Q("20 mm")),
    Sketcher.Constraint("DistanceX", -1, 1, 2, 2, Q("57 mm")),
    Sketcher.Constraint("DistanceY", -1, 1, 2, 2, Q("5 mm")),
    Sketcher.Constraint("DistanceX", -1, 1, 0, 2, Q("69.5 mm")),
])
sketch10.setExpression("Constraints[4]", "Params.sketch10_width")
pocket7 = body.newObject("PartDesign::Pocket", "Pocket006")
pocket7.Profile = sketch10
pocket7.setExpression("Length", "Params.pocket7_length")

sketch11 = body.newObject("Sketcher::SketchObject", "Sketch010")
sketch11.AttachmentSupport = (doc.getObject("YZ_Plane"), [""])
sketch11.MapMode = "FlatFace"
sketch11.AttachmentOffset = App.Placement(App.Vector(0, 0, 86), App.Rotation())
sketch11.addGeometry([
    Part.Circle(App.Vector(6.9, 8, 0), App.Vector(0, 0, 1), 1.8),
    Part.Circle(App.Vector(22.4, 8, 0), App.Vector(0, 0, 1), 1.8),
    Part.Circle(App.Vector(43.7, 8, 0), App.Vector(0, 0, 1), 1.8),
], False)
sketch11.addConstraint([
    Sketcher.Constraint("Equal", 0, 1),
    Sketcher.Constraint("Equal", 1, 2),
    Sketcher.Constraint("Horizontal", 0, 3, 1, 3),
    Sketcher.Constraint("Horizontal", 1, 3, 2, 3),
    Sketcher.Constraint("Diameter", 0, Q("3.5 mm")),
    Sketcher.Constraint("DistanceY", -1, 1, 0, 3, Q("8 mm")),
    Sketcher.Constraint("DistanceX", -1, 1, 1, 3, Q("22.360159 mm")),
    Sketcher.Constraint("DistanceX", -1, 1, 2, 3, Q("43.667682 mm")),
    Sketcher.Constraint("DistanceX", 0, 3, 2, 3, Q("36.752978 mm")),
])
sketch11.setExpression("Constraints[4]", "Params.sketch11_diameter")
pocket8 = body.newObject("PartDesign::Pocket", "Pocket007")
pocket8.Profile = sketch11
pocket8.setExpression("Length", "Params.pocket8_length")

sketch12 = body.newObject("Sketcher::SketchObject", "Sketch011")
sketch12.AttachmentSupport = (doc.getObject("XY_Plane"), [""])
sketch12.MapMode = "FlatFace"
sketch12.addGeometry([
    Part.Circle(App.Vector(4.9, 24.7, 0), App.Vector(0, 0, 1), 1.2),
    Part.Circle(App.Vector(50.7, 24.7, 0), App.Vector(0, 0, 1), 1.2),
], False)
sketch12.addConstraint([
    Sketcher.Constraint("Equal", 0, 1),
    Sketcher.Constraint("Horizontal", 0, 3, 1, 3),
    Sketcher.Constraint("Diameter", 0, Q("2.5 mm")),
    Sketcher.Constraint("DistanceX", -1, 1, 0, 3, Q("4.900762 mm")),
    Sketcher.Constraint("DistanceY", -1, 1, 0, 3, Q("24.693519 mm")),
    Sketcher.Constraint("DistanceX", -1, 1, 1, 3, Q("50.689941 mm")),
])
sketch12.setExpression("Constraints[2]", "Params.sketch12_diameter")
pocket9 = body.newObject("PartDesign::Pocket", "Pocket008")
pocket9.Profile = sketch12
pocket9.setExpression("Length", "Params.pocket9_length")
pocket9.Reversed = True

sketch13 = body.newObject("Sketcher::SketchObject", "Sketch012")
sketch13.AttachmentSupport = (doc.getObject("YZ_Plane"), [""])
sketch13.MapMode = "FlatFace"
sketch13.AttachmentOffset = App.Placement(App.Vector(0, 0, 57), App.Rotation())
sketch13.addGeometry([
    Part.LineSegment(App.Vector(45.4, 11, 0), App.Vector(41.9, 11, 0)),
    Part.LineSegment(App.Vector(41.9, 11, 0), App.Vector(40.2, 8, 0)),
    Part.LineSegment(App.Vector(40.2, 8, 0), App.Vector(41.9, 5, 0)),
    Part.LineSegment(App.Vector(41.9, 5, 0), App.Vector(45.4, 5, 0)),
    Part.LineSegment(App.Vector(45.4, 5, 0), App.Vector(47.1, 8, 0)),
    Part.LineSegment(App.Vector(47.1, 8, 0), App.Vector(45.4, 11, 0)),
    Part.LineSegment(App.Vector(24, 11, 0), App.Vector(20.6, 11, 0)),
    Part.LineSegment(App.Vector(20.6, 11, 0), App.Vector(18.8, 8, 0)),
    Part.LineSegment(App.Vector(18.8, 8, 0), App.Vector(20.6, 5, 0)),
    Part.LineSegment(App.Vector(20.6, 5, 0), App.Vector(24, 5, 0)),
    Part.LineSegment(App.Vector(24, 5, 0), App.Vector(25.8, 8, 0)),
    Part.LineSegment(App.Vector(25.8, 8, 0), App.Vector(24, 11, 0)),
    Part.LineSegment(App.Vector(8.6, 11, 0), App.Vector(5.2, 11, 0)),
    Part.LineSegment(App.Vector(5.2, 11, 0), App.Vector(3.4, 8, 0)),
    Part.LineSegment(App.Vector(3.4, 8, 0), App.Vector(5.2, 5, 0)),
    Part.LineSegment(App.Vector(5.2, 5, 0), App.Vector(8.6, 5, 0)),
    Part.LineSegment(App.Vector(8.6, 5, 0), App.Vector(10.4, 8, 0)),
    Part.LineSegment(App.Vector(10.4, 8, 0), App.Vector(8.6, 11, 0)),
], False)
sketch13.addConstraint([
    Sketcher.Constraint("Coincident", 0, 2, 1, 1),
    Sketcher.Constraint("Coincident", 1, 2, 2, 1),
    Sketcher.Constraint("Coincident", 2, 2, 3, 1),
    Sketcher.Constraint("Coincident", 3, 2, 4, 1),
    Sketcher.Constraint("Coincident", 4, 2, 5, 1),
    Sketcher.Constraint("Coincident", 5, 2, 0, 1),
    Sketcher.Constraint("Coincident", 6, 2, 7, 1),
    Sketcher.Constraint("Coincident", 7, 2, 8, 1),
    Sketcher.Constraint("Coincident", 8, 2, 9, 1),
    Sketcher.Constraint("Coincident", 9, 2, 10, 1),
    Sketcher.Constraint("Coincident", 10, 2, 11, 1),
    Sketcher.Constraint("Coincident", 11, 2, 6, 1),
    Sketcher.Constraint("Coincident", 12, 2, 13, 1),
    Sketcher.Constraint("Coincident", 13, 2, 14, 1),
    Sketcher.Constraint("Coincident", 14, 2, 15, 1),
    Sketcher.Constraint("Coincident", 15, 2, 16, 1),
    Sketcher.Constraint("Coincident", 16, 2, 17, 1),
    Sketcher.Constraint("Coincident", 17, 2, 12, 1),
    Sketcher.Constraint("Horizontal", 0),
    Sketcher.Constraint("Horizontal", 3),
    Sketcher.Constraint("Horizontal", 6),
    Sketcher.Constraint("Horizontal", 9),
    Sketcher.Constraint("Horizontal", 12),
    Sketcher.Constraint("Horizontal", 15),
    Sketcher.Constraint("Parallel", 1, 4),
    Sketcher.Constraint("Parallel", 2, 5),
    Sketcher.Constraint("Parallel", 4, 7),
    Sketcher.Constraint("Parallel", 5, 8),
    Sketcher.Constraint("Parallel", 7, 10),
    Sketcher.Constraint("Parallel", 8, 11),
    Sketcher.Constraint("Parallel", 10, 13),
    Sketcher.Constraint("Parallel", 11, 14),
    Sketcher.Constraint("Parallel", 13, 16),
    Sketcher.Constraint("Parallel", 14, 17),
    Sketcher.Constraint("Horizontal", 1, 2, 4, 2),
    Sketcher.Constraint("Horizontal", 5, 2, 6, 2),
    Sketcher.Constraint("Horizontal", 4, 2, 7, 2),
    Sketcher.Constraint("Horizontal", 3, 2, 8, 2),
    Sketcher.Constraint("Horizontal", 7, 2, 10, 2),
    Sketcher.Constraint("Horizontal", 11, 2, 12, 2),
    Sketcher.Constraint("Horizontal", 10, 2, 13, 2),
    Sketcher.Constraint("Horizontal", 9, 2, 14, 2),
    Sketcher.Constraint("Horizontal", 13, 2, 16, 2),
    Sketcher.Constraint("Vertical", 0, 2, 2, 2),
    Sketcher.Constraint("Vertical", 3, 2, 5, 2),
    Sketcher.Constraint("Equal", 3, 6),
    Sketcher.Constraint("Equal", 9, 12),
    Sketcher.Constraint("Angle", 1, Q("-120 deg")),
    Sketcher.Constraint("DistanceY", -1, 1, 0, 2, Q("11 mm")),
    Sketcher.Constraint("DistanceY", -1, 1, 1, 2, Q("8 mm")),
    Sketcher.Constraint("DistanceX", 0, 2, 0, 1, Q("3.464102 mm")),
    Sketcher.Constraint("DistanceX", -1, 1, 4, 2, Q("47.126128 mm")),
    Sketcher.Constraint("DistanceX", -1, 1, 6, 2, Q("20.558682 mm")),
    Sketcher.Constraint("DistanceX", -1, 1, 12, 2, Q("5.171191 mm")),
])
pocket10 = body.newObject("PartDesign::Pocket", "Pocket009")
pocket10.Profile = sketch13
pocket10.setExpression("Length", "Params.pocket10_length")
pocket10.Reversed = True

sketch14 = body.newObject("Sketcher::SketchObject", "Sketch013")
sketch14.AttachmentSupport = (doc.getObject("YZ_Plane"), [""])
sketch14.MapMode = "FlatFace"
sketch14.AttachmentOffset = App.Placement(App.Vector(0, 0, 57), App.Rotation())
sketch14.addGeometry([
    Part.LineSegment(App.Vector(50.4, 16.5, 0), App.Vector(50.4, 20.5, 0)),
    Part.LineSegment(App.Vector(50.4, 20.5, 0), App.Vector(-0.8, 20.5, 0)),
    Part.LineSegment(App.Vector(-0.8, 20.5, 0), App.Vector(-0.8, 16.5, 0)),
    Part.LineSegment(App.Vector(-0.8, 16.5, 0), App.Vector(50.4, 16.5, 0)),
], False)
sketch14.addConstraint([
    Sketcher.Constraint("Coincident", 0, 2, 1, 1),
    Sketcher.Constraint("Coincident", 1, 2, 2, 1),
    Sketcher.Constraint("Coincident", 2, 2, 3, 1),
    Sketcher.Constraint("Coincident", 3, 2, 0, 1),
    Sketcher.Constraint("Vertical", 0),
    Sketcher.Constraint("Horizontal", 1),
    Sketcher.Constraint("Vertical", 2),
    Sketcher.Constraint("Horizontal", 3),
    Sketcher.Constraint("DistanceY", 0, 1, 0, 2, Q("4 mm")),
    Sketcher.Constraint("DistanceX", 1, 2, 1, 1, Q("51.239952 mm")),
    Sketcher.Constraint("DistanceX", 1, 2, -1, 1, Q("0.829808 mm")),
    Sketcher.Constraint("DistanceY", -1, 1, 0, 2, Q("20.478723 mm")),
])
sketch14.setExpression("Constraints[8]", "Params.sketch14_height")
pocket11 = body.newObject("PartDesign::Pocket", "Pocket010")
pocket11.Profile = sketch14
pocket11.setExpression("Length", "Params.pocket11_length")
pocket11.Reversed = True

doc.recompute()
